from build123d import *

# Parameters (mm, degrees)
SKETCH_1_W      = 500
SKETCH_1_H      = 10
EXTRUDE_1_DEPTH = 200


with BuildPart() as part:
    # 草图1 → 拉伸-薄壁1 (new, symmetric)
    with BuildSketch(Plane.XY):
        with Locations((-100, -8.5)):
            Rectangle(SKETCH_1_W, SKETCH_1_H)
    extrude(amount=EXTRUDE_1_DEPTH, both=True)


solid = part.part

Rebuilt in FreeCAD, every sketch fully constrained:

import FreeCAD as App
import Part
import Sketcher
Q = App.Units.Quantity

doc = App.newDocument("Part")
body = doc.addObject("PartDesign::Body", "Body")

# Sketch on XY plane
sketch1 = body.newObject("Sketcher::SketchObject", "Sketch")
sketch1.AttachmentSupport = (doc.getObject("XY_Plane"), [""])
sketch1.MapMode = "FlatFace"
sketch1.addGeometry(Part.LineSegment(App.Vector(-350, -3.5, 0), App.Vector(-350, -13.5, 0)), False)
sketch1.addGeometry(Part.LineSegment(App.Vector(-350, -13.5, 0), App.Vector(150, -13.5, 0)), False)
sketch1.addGeometry(Part.LineSegment(App.Vector(150, -13.5, 0), App.Vector(150, -3.5, 0)), False)
sketch1.addGeometry(Part.LineSegment(App.Vector(150, -3.5, 0), App.Vector(-350, -3.5, 0)), False)
sketch1.addConstraint(Sketcher.Constraint("Coincident", 0, 2, 1, 1))
sketch1.addConstraint(Sketcher.Constraint("Coincident", 1, 2, 2, 1))
sketch1.addConstraint(Sketcher.Constraint("Coincident", 2, 2, 3, 1))
sketch1.addConstraint(Sketcher.Constraint("Coincident", 3, 2, 0, 1))
sketch1.addConstraint(Sketcher.Constraint("Vertical", 0))
sketch1.addConstraint(Sketcher.Constraint("Horizontal", 1))
sketch1.addConstraint(Sketcher.Constraint("Vertical", 2))
sketch1.addConstraint(Sketcher.Constraint("Horizontal", 3))
sketch1.addConstraint(Sketcher.Constraint("DistanceX", 1, 1, 1, 2, Q("500 mm")))
sketch1.addConstraint(Sketcher.Constraint("DistanceY", 0, 2, 0, 1, Q("10 mm")))
sketch1.addConstraint(Sketcher.Constraint("DistanceX", 0, 2, -1, 1, Q("350 mm")))
sketch1.addConstraint(Sketcher.Constraint("DistanceY", 0, 2, -1, 1, Q("13.5 mm")))
pad1 = body.newObject("PartDesign::Pad", "Pad")
pad1.Profile = sketch1
pad1.Length = 400
pad1.Midplane = True

doc.recompute()
